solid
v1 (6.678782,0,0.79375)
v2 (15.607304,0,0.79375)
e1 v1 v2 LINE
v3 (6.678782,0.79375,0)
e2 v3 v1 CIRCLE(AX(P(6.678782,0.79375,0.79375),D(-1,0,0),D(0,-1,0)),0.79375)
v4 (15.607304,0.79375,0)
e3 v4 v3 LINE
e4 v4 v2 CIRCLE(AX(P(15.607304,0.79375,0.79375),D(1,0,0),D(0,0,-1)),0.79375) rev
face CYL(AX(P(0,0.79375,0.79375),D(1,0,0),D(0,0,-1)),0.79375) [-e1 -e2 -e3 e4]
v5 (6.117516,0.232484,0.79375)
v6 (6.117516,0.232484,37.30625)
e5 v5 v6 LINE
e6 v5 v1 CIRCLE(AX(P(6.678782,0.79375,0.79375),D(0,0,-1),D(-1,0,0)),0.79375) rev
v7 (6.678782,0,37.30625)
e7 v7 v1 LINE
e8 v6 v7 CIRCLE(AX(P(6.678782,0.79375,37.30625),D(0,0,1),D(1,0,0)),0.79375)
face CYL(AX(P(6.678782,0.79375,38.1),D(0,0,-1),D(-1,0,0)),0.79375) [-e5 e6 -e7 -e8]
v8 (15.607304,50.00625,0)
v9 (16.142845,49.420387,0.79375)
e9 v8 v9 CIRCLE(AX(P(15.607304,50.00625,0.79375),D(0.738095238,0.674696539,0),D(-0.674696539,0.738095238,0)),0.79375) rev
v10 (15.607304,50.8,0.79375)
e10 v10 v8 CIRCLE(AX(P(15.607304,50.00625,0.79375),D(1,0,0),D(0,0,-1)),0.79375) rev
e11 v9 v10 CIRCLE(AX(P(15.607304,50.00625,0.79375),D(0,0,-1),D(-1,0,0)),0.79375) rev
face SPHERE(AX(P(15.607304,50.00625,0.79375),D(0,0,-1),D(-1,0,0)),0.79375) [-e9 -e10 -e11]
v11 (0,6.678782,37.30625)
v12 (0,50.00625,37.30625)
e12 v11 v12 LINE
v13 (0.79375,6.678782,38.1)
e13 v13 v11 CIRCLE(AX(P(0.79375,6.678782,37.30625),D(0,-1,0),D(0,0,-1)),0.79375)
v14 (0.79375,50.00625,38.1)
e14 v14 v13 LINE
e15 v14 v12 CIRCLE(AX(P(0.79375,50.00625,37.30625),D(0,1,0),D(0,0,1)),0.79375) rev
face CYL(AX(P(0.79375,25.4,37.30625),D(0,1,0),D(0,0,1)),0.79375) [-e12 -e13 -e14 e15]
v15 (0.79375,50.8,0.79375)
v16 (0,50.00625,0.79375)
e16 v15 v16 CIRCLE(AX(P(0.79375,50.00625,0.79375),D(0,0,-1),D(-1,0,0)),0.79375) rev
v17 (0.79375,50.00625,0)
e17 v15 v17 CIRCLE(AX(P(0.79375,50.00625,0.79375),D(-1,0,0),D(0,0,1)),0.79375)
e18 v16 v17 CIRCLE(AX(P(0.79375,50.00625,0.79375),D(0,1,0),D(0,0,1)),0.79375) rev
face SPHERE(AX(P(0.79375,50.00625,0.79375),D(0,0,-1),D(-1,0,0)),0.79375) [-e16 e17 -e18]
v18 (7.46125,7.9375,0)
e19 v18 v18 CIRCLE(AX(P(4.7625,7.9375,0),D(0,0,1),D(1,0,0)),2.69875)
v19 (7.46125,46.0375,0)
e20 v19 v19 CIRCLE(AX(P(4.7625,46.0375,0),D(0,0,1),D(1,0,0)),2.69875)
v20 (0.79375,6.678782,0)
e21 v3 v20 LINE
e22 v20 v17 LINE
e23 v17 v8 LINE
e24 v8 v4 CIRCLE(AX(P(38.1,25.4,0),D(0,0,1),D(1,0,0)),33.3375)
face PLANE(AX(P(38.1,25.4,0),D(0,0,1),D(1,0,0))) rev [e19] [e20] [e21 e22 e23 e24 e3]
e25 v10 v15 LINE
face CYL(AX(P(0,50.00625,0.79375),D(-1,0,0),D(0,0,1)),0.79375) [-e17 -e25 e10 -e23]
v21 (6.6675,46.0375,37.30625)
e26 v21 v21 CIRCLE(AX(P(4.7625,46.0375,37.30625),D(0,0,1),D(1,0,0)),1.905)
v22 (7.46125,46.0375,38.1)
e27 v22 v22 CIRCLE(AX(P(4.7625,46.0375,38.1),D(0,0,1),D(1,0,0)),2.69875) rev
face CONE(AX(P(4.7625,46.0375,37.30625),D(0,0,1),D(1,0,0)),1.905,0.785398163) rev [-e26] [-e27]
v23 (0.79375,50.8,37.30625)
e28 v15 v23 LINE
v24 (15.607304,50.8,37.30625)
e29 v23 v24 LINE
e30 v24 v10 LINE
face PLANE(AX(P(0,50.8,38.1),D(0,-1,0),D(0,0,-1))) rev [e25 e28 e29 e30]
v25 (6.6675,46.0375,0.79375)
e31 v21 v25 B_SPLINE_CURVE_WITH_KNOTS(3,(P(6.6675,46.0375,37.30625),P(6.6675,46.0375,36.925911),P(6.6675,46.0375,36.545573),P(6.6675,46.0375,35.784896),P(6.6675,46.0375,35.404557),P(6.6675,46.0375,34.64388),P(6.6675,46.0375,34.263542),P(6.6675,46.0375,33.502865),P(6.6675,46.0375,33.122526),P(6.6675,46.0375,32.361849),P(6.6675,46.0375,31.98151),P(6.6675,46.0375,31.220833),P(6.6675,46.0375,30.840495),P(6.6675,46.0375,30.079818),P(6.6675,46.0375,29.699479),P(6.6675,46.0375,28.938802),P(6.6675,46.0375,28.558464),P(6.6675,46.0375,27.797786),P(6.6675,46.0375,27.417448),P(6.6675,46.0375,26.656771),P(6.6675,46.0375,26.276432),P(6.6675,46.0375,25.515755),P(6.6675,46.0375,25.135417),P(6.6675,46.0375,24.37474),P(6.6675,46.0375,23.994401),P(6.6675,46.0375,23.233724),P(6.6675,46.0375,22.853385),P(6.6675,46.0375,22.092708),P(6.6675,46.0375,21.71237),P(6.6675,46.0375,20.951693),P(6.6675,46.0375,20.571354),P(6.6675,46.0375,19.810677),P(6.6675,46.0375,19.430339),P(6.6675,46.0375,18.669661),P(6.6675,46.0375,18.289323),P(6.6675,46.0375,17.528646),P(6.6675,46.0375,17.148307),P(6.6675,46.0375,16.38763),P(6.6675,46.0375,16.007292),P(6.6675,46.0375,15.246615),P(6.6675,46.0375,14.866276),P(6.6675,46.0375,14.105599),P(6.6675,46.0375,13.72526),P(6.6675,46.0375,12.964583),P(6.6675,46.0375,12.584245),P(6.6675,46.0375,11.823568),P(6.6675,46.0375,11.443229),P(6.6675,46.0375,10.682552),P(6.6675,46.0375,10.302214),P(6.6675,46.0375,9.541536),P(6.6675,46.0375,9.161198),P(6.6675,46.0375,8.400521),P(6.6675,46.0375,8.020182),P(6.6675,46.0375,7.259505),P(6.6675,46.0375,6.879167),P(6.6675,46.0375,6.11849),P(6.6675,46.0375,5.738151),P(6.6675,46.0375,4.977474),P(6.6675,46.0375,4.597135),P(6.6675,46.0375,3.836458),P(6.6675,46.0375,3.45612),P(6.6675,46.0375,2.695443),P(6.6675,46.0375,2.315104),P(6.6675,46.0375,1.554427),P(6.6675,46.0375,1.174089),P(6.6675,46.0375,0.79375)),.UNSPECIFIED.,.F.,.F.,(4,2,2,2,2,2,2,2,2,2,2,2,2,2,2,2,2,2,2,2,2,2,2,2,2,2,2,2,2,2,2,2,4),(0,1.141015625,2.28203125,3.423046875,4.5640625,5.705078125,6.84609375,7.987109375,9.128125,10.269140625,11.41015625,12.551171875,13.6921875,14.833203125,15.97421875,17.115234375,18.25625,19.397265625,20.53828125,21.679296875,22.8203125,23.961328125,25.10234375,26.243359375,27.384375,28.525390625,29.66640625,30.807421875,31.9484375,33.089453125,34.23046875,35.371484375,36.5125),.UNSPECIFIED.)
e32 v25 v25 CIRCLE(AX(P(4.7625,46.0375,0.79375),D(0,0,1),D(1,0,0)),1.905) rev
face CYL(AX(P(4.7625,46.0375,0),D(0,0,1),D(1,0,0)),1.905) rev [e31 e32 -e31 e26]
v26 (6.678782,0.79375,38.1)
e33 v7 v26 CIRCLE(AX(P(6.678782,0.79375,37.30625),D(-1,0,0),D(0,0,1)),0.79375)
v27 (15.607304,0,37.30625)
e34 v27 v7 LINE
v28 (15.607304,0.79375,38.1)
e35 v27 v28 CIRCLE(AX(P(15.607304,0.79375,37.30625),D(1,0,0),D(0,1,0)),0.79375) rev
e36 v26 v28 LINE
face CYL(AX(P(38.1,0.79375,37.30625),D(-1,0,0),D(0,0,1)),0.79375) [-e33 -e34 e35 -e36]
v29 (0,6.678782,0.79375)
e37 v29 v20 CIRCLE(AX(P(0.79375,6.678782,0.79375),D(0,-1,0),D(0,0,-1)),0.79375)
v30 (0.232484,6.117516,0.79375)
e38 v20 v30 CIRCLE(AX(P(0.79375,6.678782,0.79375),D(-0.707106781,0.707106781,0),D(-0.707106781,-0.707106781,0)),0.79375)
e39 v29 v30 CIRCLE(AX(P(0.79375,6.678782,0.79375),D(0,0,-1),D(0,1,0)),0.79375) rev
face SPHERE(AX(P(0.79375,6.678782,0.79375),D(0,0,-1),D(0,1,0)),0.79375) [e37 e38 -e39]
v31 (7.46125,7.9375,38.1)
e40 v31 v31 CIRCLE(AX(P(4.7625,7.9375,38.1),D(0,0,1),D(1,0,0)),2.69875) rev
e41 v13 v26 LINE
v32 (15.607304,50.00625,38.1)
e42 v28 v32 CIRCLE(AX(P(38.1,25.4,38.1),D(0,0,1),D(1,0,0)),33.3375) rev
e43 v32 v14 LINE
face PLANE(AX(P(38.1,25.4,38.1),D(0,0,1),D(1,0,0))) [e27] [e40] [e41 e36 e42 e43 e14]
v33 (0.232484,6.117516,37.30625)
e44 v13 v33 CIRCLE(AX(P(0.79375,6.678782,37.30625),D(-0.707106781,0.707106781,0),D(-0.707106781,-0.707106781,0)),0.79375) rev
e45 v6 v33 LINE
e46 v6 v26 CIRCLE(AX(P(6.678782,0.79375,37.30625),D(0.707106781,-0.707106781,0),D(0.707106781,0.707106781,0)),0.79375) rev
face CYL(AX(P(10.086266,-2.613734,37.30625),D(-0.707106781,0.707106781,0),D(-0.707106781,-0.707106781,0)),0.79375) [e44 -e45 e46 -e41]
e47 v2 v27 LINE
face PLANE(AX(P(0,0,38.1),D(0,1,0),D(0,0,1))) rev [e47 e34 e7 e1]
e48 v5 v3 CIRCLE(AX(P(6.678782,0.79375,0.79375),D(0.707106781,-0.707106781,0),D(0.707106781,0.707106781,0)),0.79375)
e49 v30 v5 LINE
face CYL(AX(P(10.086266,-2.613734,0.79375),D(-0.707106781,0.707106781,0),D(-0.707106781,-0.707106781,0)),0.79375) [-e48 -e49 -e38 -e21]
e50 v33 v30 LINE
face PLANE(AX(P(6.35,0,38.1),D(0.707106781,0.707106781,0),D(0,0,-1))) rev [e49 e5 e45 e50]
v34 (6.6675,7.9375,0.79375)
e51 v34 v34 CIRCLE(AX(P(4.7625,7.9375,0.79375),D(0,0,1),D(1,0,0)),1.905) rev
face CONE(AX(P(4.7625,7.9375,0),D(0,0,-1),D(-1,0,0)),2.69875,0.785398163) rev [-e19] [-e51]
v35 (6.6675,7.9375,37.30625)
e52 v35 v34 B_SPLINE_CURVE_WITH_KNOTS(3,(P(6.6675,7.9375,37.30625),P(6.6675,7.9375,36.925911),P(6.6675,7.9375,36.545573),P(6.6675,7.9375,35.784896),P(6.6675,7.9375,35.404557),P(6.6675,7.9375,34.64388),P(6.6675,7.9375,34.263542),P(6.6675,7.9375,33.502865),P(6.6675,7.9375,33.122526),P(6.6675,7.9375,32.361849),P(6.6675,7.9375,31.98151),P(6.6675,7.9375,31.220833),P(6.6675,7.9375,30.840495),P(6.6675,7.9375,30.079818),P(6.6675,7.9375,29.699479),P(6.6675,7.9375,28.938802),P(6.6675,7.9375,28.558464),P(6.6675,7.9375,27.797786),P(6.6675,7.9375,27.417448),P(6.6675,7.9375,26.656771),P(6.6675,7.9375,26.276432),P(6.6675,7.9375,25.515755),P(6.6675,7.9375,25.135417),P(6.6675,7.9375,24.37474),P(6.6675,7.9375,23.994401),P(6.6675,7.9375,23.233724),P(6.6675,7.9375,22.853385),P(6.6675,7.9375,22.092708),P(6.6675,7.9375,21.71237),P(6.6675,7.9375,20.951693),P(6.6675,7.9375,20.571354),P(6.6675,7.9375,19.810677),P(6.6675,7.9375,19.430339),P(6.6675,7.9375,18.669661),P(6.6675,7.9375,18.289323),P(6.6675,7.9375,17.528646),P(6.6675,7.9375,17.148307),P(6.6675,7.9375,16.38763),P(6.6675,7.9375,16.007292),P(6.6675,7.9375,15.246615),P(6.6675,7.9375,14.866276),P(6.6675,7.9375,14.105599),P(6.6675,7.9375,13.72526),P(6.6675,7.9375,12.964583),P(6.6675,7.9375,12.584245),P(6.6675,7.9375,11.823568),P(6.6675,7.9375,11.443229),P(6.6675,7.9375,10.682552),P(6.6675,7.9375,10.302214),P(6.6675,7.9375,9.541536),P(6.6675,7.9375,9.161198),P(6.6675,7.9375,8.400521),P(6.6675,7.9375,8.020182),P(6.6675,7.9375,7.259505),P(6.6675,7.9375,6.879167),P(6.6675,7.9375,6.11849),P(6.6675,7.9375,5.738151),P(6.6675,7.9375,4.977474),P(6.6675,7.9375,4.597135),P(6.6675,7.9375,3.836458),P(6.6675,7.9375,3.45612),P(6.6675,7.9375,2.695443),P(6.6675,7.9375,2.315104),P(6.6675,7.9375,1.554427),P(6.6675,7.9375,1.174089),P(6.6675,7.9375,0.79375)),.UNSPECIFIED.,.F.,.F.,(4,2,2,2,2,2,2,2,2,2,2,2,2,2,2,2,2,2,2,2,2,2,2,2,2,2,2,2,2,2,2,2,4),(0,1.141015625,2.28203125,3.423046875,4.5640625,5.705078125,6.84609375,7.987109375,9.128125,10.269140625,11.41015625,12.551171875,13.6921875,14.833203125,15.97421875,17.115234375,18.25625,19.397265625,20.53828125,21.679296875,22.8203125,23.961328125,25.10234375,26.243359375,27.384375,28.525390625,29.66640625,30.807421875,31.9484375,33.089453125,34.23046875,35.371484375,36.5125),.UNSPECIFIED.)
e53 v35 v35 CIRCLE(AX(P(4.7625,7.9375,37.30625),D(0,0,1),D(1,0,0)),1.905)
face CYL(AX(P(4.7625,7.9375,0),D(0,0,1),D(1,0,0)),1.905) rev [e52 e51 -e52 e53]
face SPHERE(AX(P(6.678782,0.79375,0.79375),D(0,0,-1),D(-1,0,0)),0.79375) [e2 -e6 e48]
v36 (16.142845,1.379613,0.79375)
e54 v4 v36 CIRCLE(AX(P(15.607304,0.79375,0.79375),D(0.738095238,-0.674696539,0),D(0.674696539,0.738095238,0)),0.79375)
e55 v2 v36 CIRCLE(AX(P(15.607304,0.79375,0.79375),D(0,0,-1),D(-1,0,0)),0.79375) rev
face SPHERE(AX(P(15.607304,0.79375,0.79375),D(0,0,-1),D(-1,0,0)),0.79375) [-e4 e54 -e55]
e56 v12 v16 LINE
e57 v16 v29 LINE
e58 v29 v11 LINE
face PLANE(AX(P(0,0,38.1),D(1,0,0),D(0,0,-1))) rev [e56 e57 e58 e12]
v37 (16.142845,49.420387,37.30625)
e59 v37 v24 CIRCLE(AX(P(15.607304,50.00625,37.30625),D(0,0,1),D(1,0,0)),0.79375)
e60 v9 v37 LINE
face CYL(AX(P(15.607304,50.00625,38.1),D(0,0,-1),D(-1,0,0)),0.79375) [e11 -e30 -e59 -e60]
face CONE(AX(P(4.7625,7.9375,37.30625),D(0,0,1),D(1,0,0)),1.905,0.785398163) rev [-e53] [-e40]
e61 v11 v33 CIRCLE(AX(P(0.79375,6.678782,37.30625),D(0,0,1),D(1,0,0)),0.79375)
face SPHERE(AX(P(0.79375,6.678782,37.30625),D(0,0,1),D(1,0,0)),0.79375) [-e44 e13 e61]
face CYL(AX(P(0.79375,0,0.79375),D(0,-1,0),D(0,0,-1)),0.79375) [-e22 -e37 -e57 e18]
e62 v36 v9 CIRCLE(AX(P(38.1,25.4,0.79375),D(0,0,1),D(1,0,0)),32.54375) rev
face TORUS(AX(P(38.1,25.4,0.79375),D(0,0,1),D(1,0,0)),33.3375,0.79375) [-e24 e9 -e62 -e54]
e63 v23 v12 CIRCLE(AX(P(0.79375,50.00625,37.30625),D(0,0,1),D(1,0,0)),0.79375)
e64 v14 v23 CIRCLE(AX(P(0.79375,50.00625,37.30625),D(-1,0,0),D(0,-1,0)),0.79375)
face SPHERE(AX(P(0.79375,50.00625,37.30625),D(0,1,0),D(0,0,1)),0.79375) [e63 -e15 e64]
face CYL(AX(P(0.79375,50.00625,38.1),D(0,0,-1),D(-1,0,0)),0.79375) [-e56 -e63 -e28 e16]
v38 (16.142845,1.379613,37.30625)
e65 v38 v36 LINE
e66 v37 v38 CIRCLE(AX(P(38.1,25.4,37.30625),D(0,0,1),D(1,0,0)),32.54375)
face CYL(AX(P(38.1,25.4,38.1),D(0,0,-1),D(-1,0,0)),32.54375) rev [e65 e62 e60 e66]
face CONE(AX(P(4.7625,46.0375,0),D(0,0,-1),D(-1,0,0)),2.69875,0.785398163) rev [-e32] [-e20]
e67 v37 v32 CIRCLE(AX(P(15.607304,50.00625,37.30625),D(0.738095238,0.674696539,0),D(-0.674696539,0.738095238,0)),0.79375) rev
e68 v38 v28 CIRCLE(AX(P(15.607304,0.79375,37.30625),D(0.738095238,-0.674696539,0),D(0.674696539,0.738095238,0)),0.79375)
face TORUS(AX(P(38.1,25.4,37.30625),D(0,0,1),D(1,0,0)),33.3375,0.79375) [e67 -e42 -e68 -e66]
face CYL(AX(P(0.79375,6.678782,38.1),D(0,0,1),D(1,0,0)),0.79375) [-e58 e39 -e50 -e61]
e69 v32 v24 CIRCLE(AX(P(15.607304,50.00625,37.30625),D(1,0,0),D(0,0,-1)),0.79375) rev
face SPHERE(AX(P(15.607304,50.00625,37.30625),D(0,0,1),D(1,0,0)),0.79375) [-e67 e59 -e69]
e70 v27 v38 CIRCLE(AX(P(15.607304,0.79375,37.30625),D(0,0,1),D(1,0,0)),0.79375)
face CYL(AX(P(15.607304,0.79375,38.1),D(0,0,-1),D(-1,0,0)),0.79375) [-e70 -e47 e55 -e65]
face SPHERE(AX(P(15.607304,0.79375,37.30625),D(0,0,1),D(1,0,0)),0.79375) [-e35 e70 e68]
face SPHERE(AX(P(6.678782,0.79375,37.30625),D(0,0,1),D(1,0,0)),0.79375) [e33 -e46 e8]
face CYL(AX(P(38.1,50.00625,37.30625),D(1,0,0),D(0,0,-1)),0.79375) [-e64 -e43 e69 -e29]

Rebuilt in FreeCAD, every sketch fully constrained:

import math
import FreeCAD as App
import Part
import Sketcher
Q = App.Units.Quantity


def edges_at(feature, points):
    """Names of the edges that pass closest to the given points."""
    edges = feature.Shape.Edges
    near = lambda p: min(range(len(edges)), key=lambda i: edges[i].distToShape(Part.Vertex(*p))[0])
    return sorted({f"Edge{near(p) + 1}" for p in points})

doc = App.newDocument("Part")
body = doc.addObject("PartDesign::Body", "Body")

# Sketch on XY plane
sketch1 = doc.addObject("Sketcher::SketchObject", "Sketch")
body.addObject(sketch1)
sketch1.AttachmentSupport = (doc.XY_Plane, [""])
sketch1.MapMode = "FlatFace"
sketch1.addGeometry(Part.LineSegment(App.Vector(0, 0, 0), App.Vector(18, 0, 0)), False)
sketch1.addGeometry(Part.ArcOfCircle(Part.Circle(App.Vector(38, 25, 0), App.Vector(0, 0, 1), 33), math.radians(129), math.radians(231)), False)
sketch1.addGeometry(Part.LineSegment(App.Vector(18, 51, 0), App.Vector(0, 51, 0)), False)
sketch1.addGeometry(Part.LineSegment(App.Vector(0, 51, 0), App.Vector(0, 0, 0)), False)
sketch1.addConstraint(Sketcher.Constraint("Coincident", 0, 2, 1, 2))
sketch1.addConstraint(Sketcher.Constraint("Coincident", 1, 1, 2, 1))
sketch1.addConstraint(Sketcher.Constraint("Coincident", 2, 2, 3, 1))
sketch1.addConstraint(Sketcher.Constraint("Coincident", 3, 2, 0, 1))
sketch1.addConstraint(Sketcher.Constraint("Horizontal", 0))
sketch1.addConstraint(Sketcher.Constraint("Horizontal", 2))
sketch1.addConstraint(Sketcher.Constraint("Vertical", 3))
sketch1.addConstraint(Sketcher.Constraint("Coincident", 3, 2, -1, 1))
sketch1.addConstraint(Sketcher.Constraint("Vertical", 0, 2, 1, 1))
sketch1.addConstraint(Sketcher.Constraint("DistanceY", 3, 2, 3, 1, Q("2 in")))
sketch1.addConstraint(Sketcher.Constraint("Radius", 1, Q("1.28125 in")))
sketch1.addConstraint(Sketcher.Constraint("DistanceX", -1, 1, 1, 3, Q("1.5 in")))
pad1 = doc.addObject("PartDesign::Pad", "Pad")
body.addObject(pad1)
pad1.Profile = sketch1
pad1.Length = Q("1.5 in")

# Sketch on XY plane
sketch2 = doc.addObject("Sketcher::SketchObject", "Sketch001")
body.addObject(sketch2)
sketch2.AttachmentSupport = (doc.XY_Plane, [""])
sketch2.MapMode = "FlatFace"
sketch2.AttachmentOffset = App.Placement(App.Vector(0, 0, 1.5 * 25.4), App.Rotation())
sketch2.addGeometry(Part.Circle(App.Vector(4.8, 46, 0), App.Vector(0, 0, 1), 1.9), False)
sketch2.addGeometry(Part.Circle(App.Vector(4.8, 7.9, 0), App.Vector(0, 0, 1), 1.9), False)
sketch2.addConstraint(Sketcher.Constraint("Equal", 0, 1))
sketch2.addConstraint(Sketcher.Constraint("Vertical", 0, 3, 1, 3))
sketch2.addConstraint(Sketcher.Constraint("Diameter", 0, Q("0.15 in")))
sketch2.addConstraint(Sketcher.Constraint("DistanceY", 1, 3, 0, 3, Q("1.5 in")))
sketch2.addConstraint(Sketcher.Constraint("DistanceX", -1, 1, 0, 3, Q("0.1875 in")))
sketch2.addConstraint(Sketcher.Constraint("DistanceY", -1, 1, 0, 3, Q("1.8125 in")))
pocket1 = doc.addObject("PartDesign::Pocket", "Pocket")
body.addObject(pocket1)
pocket1.Profile = sketch2
pocket1.Type = "ThroughAll"
doc.recompute()

chamfer = doc.addObject("PartDesign::Chamfer", "Chamfer")
body.addObject(chamfer)
chamfer.Base = (pocket1, edges_at(pocket1, [(0, 0, 19.05)]))
chamfer.Size = Q("0.25 in")
doc.recompute()

fillet = doc.addObject("PartDesign::Fillet", "Fillet")
body.addObject(fillet)
fillet.Base = (chamfer, edges_at(chamfer, [
    (5.556, 25.4, 38.1),
    (8.877, 50.8, 38.1),
    (12.052, 0, 0),
    (12.052, 0, 38.1),
    (6.35, 0, 19.05),
    (3.175, 3.175, 0),
    (0, 6.35, 19.05),
    (3.175, 3.175, 38.1),
    (0, 28.575, 38.1),
    (8.877, 50.8, 0),
    (5.556, 25.4, 0),
    (0, 28.575, 0),
    (0, 50.8, 19.05),
    (17.755, 50.8, 19.05),
    (17.755, 0, 19.05),
]))
fillet.Radius = Q("0.03125 in")
doc.recompute()

chamfer2 = doc.addObject("PartDesign::Chamfer", "Chamfer001")
body.addObject(chamfer2)
chamfer2.Base = (fillet, edges_at(fillet, [
    (2.857, 46.038, 0),
    (2.857, 46.038, 38.1),
    (2.857, 7.938, 0),
    (2.857, 7.938, 38.1),
]))
chamfer2.Size = Q("0.03125 in")

doc.recompute()
